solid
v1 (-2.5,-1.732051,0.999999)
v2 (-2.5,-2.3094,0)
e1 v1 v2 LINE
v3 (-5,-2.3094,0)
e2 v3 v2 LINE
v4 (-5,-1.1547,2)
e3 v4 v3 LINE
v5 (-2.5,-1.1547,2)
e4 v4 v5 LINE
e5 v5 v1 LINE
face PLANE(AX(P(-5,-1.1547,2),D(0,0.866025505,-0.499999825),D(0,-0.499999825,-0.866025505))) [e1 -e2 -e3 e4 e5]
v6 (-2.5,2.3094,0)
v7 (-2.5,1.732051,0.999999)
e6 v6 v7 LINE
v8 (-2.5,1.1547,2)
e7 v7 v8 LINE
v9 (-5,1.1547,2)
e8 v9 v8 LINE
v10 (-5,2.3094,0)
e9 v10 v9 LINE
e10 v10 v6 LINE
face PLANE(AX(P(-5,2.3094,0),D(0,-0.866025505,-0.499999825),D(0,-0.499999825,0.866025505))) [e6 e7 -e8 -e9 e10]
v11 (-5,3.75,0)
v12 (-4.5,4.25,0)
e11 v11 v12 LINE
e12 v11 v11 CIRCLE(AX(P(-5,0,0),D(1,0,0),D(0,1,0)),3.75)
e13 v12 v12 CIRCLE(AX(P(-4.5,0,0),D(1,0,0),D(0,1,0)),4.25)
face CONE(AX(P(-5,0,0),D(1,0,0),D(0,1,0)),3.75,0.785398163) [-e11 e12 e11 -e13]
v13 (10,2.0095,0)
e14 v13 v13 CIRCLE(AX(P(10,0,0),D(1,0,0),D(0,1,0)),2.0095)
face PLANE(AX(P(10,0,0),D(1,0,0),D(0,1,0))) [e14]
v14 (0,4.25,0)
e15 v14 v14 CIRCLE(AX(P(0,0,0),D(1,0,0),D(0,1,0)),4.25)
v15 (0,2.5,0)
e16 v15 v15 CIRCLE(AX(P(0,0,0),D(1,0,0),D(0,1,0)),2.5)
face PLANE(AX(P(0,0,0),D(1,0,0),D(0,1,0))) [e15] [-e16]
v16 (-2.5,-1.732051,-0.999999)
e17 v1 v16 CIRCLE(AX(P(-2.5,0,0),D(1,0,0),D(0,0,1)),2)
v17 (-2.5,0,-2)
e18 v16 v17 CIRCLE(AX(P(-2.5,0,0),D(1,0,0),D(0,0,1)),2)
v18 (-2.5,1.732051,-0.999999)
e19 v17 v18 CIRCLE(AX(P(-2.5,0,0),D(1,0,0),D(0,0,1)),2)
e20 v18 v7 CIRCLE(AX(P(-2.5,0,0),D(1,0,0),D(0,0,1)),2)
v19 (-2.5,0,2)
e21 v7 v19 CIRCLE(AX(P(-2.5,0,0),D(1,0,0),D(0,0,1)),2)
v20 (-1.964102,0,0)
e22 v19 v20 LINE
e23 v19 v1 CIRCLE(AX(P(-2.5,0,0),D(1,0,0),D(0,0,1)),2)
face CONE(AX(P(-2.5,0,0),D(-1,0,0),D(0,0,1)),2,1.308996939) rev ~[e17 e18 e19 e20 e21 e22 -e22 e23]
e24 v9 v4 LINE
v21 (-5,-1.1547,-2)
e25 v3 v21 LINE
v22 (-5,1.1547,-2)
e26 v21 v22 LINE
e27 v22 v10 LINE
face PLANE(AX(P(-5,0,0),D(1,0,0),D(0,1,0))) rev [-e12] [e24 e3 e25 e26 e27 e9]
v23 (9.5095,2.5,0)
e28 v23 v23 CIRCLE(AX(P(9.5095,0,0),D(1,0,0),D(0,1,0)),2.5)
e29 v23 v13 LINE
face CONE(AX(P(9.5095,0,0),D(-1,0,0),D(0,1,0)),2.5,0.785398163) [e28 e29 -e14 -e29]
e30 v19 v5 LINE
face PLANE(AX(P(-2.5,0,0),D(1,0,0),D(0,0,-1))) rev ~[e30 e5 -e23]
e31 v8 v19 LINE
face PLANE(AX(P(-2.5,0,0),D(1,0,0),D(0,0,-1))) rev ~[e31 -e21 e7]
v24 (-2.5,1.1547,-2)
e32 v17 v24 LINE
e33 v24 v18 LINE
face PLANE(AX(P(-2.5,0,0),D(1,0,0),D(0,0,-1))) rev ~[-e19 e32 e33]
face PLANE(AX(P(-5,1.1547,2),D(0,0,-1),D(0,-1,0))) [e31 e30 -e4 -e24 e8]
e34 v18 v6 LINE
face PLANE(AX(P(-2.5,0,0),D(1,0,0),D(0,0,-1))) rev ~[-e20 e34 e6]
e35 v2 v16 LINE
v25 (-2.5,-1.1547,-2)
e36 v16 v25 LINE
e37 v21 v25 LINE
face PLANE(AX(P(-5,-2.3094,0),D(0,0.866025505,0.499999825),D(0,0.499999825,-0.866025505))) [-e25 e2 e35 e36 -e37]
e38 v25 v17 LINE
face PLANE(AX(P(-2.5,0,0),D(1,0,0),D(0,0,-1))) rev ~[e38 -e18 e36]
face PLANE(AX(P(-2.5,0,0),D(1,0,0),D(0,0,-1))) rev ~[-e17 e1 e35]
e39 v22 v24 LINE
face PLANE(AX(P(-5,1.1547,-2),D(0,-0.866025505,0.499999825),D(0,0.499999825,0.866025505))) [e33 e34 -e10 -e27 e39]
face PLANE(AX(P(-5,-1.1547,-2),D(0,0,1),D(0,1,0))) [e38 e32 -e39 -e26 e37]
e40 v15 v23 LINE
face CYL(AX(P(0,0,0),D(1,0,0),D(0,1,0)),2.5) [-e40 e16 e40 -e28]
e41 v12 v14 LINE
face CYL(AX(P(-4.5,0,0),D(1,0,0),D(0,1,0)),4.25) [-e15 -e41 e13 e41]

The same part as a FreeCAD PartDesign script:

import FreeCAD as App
import Part
import Sketcher
from FreeCAD import Vector
Q = App.Units.Quantity


def add_polygon(sketch, points):
    """Adds a closed chain of lines whose ends are joined by coincident constraints."""
    first, n = sketch.GeometryCount, len(points)
    for a, b in zip(points, points[1:] + points[:1]):
        sketch.addGeometry(Part.LineSegment(App.Vector(*a, 0), App.Vector(*b, 0)), False)
    for i in range(n):
        sketch.addConstraint(Sketcher.Constraint("Coincident", first + i, 2, first + (i + 1) % n, 1))

doc = App.newDocument("Part")
body = doc.addObject("PartDesign::Body", "Body")

sketch1 = doc.addObject("Sketcher::SketchObject", "Sketch")
body.addObject(sketch1)
sketch1.AttachmentSupport = (doc.XY_Plane, [""])
sketch1.MapMode = "FlatFace"
add_polygon(sketch1, [(-5, 0), (10, 0), (10, 2), (9.5, 2.5), (0, 2.5), (0, 4.2), (-4.5, 4.2), (-5, 3.8)])
sketch1.addConstraint([
    Sketcher.Constraint("Horizontal", 0),
    Sketcher.Constraint("Vertical", 1),
    Sketcher.Constraint("Horizontal", 3),
    Sketcher.Constraint("Vertical", 4),
    Sketcher.Constraint("Horizontal", 5),
    Sketcher.Constraint("Vertical", 7),
    Sketcher.Constraint("PointOnObject", 0, 2, -1),
    Sketcher.Constraint("PointOnObject", 3, 2, -2),
    Sketcher.Constraint("Perpendicular", 2, 6),
    Sketcher.Constraint("DistanceX", 0, 1, 0, 2, Q("15 mm")),
    Sketcher.Constraint("Angle", 2, Q("135 deg")),
    Sketcher.Constraint("DistanceX", 5, 2, 5, 1, Q("4.5 mm")),
    Sketcher.Constraint("DistanceX", -1, 1, 0, 2, Q("10 mm")),
    Sketcher.Constraint("DistanceY", 4, 1, 4, 2, Q("1.75 mm")),
    Sketcher.Constraint("DistanceY", 7, 2, 7, 1, Q("3.75 mm")),
    Sketcher.Constraint("DistanceX", 3, 2, 3, 1, Q("9.5095 mm")),
])
revolution = doc.addObject("PartDesign::Revolution", "Revolution")
body.addObject(revolution)
revolution.Profile = sketch1
revolution.ReferenceAxis = (sketch1, ["H_Axis"])
revolution.Angle = 360

sketch2 = doc.addObject("Sketcher::SketchObject", "Sketch001")
body.addObject(sketch2)
sketch2.AttachmentSupport = (doc.YZ_Plane, [""])
sketch2.MapMode = "FlatFace"
sketch2.AttachmentOffset = App.Placement(Vector(0, 0, -5), App.Rotation())
sketch2.addGeometry(Part.Circle(Vector(0, 0, 0), Vector(0, 0, 1), 2), False)
sketch2.addConstraint([
    Sketcher.Constraint("Coincident", 0, 3, -1, 1),
    Sketcher.Constraint("Diameter", 0, Q("4 mm")),
])
doc.recompute()
hole = doc.addObject("PartDesign::Hole", "Hole")
body.addObject(hole)
hole.Profile = sketch2
hole.ThreadType = "None"
hole.Diameter = 4
hole.DepthType = "Dimension"
hole.Depth = 2.5
hole.DrillPoint = "Angled"
hole.DrillPointAngle = 150
hole.Reversed = True

sketch3 = doc.addObject("Sketcher::SketchObject", "Sketch002")
body.addObject(sketch3)
sketch3.AttachmentSupport = (doc.YZ_Plane, [""])
sketch3.MapMode = "FlatFace"
sketch3.AttachmentOffset = App.Placement(Vector(0, 0, -5), App.Rotation())
add_polygon(sketch3, [(2.3, 0), (1.2, 2), (-1.2, 2), (-2.3, 0), (-1.2, -2), (1.2, -2)])
sketch3.addConstraint([
    Sketcher.Constraint("Horizontal", 1),
    Sketcher.Constraint("Horizontal", 4),
    Sketcher.Constraint("Symmetric", 0, 2, 3, 2, -1, 1),
    Sketcher.Constraint("Symmetric", 2, 2, 5, 2, -1, 1),
    Sketcher.Constraint("PointOnObject", 2, 2, -1),
    Sketcher.Constraint("Parallel", 2, 5),
    Sketcher.Constraint("Vertical", 1, 2, 3, 2),
    Sketcher.Constraint("Angle", 0, Q("120 deg")),
    Sketcher.Constraint("DistanceY", -1, 1, 0, 2, Q("2 mm")),
    Sketcher.Constraint("DistanceX", 1, 2, 1, 1, Q("2.3094 mm")),
])
pocket1 = doc.addObject("PartDesign::Pocket", "Pocket")
body.addObject(pocket1)
pocket1.Profile = sketch3
pocket1.Length = 2.5
pocket1.Reversed = True

doc.recompute()
